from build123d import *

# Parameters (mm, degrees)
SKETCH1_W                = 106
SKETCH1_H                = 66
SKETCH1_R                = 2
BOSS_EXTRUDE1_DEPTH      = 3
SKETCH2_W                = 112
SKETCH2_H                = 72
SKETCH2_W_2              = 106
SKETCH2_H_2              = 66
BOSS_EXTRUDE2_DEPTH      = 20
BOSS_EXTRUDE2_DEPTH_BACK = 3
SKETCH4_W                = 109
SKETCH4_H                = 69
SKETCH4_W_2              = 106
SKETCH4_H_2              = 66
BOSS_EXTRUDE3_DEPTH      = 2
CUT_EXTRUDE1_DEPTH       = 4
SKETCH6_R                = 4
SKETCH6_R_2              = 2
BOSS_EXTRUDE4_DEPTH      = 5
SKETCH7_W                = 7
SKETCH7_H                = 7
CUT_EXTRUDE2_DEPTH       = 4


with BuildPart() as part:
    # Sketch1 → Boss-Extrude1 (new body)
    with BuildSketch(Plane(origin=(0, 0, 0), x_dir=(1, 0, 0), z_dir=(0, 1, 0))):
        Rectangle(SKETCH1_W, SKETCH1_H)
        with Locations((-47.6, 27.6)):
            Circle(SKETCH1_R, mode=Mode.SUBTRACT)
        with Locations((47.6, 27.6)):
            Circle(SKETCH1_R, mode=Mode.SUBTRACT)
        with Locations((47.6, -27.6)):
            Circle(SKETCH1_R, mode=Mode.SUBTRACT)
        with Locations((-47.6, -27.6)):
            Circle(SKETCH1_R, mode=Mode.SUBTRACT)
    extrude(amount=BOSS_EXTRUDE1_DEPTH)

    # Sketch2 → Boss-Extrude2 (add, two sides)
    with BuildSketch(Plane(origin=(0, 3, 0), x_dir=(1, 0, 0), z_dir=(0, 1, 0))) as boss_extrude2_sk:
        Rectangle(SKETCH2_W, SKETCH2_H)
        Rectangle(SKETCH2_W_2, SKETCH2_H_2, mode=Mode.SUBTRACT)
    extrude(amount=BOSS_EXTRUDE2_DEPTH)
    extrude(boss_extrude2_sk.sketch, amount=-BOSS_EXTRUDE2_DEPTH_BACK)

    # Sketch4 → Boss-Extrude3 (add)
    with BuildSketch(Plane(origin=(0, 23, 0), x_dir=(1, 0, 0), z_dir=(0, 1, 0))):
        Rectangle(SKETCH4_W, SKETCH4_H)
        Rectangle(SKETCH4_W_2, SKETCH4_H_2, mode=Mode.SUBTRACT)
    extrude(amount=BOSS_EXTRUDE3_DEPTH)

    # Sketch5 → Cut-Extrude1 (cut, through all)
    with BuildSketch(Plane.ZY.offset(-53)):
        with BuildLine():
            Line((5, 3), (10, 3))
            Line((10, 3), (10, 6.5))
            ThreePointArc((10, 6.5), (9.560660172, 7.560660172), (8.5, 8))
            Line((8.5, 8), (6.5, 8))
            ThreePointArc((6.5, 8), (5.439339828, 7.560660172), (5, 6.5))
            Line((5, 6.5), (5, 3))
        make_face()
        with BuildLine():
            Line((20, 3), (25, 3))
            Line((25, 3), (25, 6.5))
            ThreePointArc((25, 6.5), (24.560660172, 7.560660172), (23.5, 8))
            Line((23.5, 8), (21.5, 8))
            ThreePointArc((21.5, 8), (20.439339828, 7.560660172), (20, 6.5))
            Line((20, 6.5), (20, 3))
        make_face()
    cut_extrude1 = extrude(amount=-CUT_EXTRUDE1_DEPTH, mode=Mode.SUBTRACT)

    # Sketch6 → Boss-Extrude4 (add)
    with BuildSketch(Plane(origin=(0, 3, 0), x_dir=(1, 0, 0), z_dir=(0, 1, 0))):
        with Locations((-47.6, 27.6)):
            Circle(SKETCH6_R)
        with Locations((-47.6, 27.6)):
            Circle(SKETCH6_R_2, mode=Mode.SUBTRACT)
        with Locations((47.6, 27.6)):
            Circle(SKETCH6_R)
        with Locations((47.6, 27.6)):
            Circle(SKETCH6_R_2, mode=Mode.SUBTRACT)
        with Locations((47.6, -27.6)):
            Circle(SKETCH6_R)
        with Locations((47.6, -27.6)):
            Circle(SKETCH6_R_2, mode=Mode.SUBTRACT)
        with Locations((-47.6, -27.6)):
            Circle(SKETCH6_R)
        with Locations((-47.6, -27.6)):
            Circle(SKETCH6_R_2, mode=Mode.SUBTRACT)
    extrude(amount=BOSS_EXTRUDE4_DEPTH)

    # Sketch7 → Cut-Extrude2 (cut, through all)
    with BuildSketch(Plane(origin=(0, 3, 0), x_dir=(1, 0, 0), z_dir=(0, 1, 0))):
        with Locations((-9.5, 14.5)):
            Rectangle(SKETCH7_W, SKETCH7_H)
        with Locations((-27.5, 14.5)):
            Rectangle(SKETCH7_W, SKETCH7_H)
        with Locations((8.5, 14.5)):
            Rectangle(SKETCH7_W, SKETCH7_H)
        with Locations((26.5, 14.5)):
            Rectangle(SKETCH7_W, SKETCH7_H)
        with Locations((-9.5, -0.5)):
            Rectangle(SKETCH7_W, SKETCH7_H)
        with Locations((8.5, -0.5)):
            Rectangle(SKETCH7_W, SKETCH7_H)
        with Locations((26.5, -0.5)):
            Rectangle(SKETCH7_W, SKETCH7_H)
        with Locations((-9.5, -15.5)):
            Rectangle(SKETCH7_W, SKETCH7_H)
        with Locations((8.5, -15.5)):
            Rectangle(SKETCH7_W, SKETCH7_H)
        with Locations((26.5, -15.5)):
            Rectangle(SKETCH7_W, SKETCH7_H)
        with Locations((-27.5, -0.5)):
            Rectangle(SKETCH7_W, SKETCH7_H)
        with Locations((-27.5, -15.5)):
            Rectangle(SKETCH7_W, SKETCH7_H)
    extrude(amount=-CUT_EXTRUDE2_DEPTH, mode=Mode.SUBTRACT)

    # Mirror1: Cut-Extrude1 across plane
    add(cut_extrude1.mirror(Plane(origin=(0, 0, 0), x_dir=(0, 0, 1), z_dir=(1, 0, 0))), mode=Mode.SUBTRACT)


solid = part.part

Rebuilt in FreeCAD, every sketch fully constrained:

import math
import FreeCAD as App
import Part
import Sketcher
Q = App.Units.Quantity


def add_polygon(sketch, points):
    """Adds a closed chain of lines whose ends are joined by coincident constraints."""
    first, n = sketch.GeometryCount, len(points)
    for a, b in zip(points, points[1:] + points[:1]):
        sketch.addGeometry(Part.LineSegment(App.Vector(*a, 0), App.Vector(*b, 0)), False)
    for i in range(n):
        sketch.addConstraint(Sketcher.Constraint("Coincident", first + i, 2, first + (i + 1) % n, 1))

doc = App.newDocument("Part")
body = doc.addObject("PartDesign::Body", "Body")

# Sketch on XZ plane
sketch1 = body.newObject("Sketcher::SketchObject", "Sketch")
sketch1.AttachmentSupport = (doc.getObject("XZ_Plane"), [""])
sketch1.MapMode = "FlatFace"
add_polygon(sketch1, [(-53, -33), (-53, 33), (53, 33), (53, -33)])  # lines 0-3
sketch1.addGeometry(Part.Circle(App.Vector(-47.6, 27.6, 0), App.Vector(0, 0, 1), 2), False)  # 4
sketch1.addGeometry(Part.Circle(App.Vector(47.6, 27.6, 0), App.Vector(0, 0, 1), 2), False)  # 5
sketch1.addGeometry(Part.Circle(App.Vector(-47.6, -27.6, 0), App.Vector(0, 0, 1), 2), False)  # 6
sketch1.addGeometry(Part.Circle(App.Vector(47.6, -27.6, 0), App.Vector(0, 0, 1), 2), False)  # 7
sketch1.addConstraint([
    Sketcher.Constraint("Vertical", 0),
    Sketcher.Constraint("Horizontal", 1),
    Sketcher.Constraint("Vertical", 2),
    Sketcher.Constraint("Horizontal", 3),
    Sketcher.Constraint("Equal", 4, 5),
    Sketcher.Constraint("Equal", 5, 6),
    Sketcher.Constraint("Equal", 6, 7),
    Sketcher.Constraint("Symmetric", 5, 3, 6, 3, -1, 1),
    Sketcher.Constraint("Symmetric", 4, 3, 7, 3, -1, 1),
    Sketcher.Constraint("Symmetric", 0, 2, 2, 2, -1, 1),
    Sketcher.Constraint("Symmetric", 4, 3, 5, 3, -2),
    Sketcher.Constraint("Diameter", 4, Q("4 mm")),
    Sketcher.Constraint("DistanceX", 1, 1, 1, 2, Q("106 mm")),
    Sketcher.Constraint("DistanceY", 0, 1, 0, 2, Q("66 mm")),
    Sketcher.Constraint("DistanceX", 4, 3, -1, 1, Q("47.6 mm")),
    Sketcher.Constraint("DistanceY", -1, 1, 4, 3, Q("27.6 mm")),
])
pad1 = body.newObject("PartDesign::Pad", "Pad")
pad1.Profile = sketch1
pad1.Length = 3
pad1.Reversed = True

# Sketch on XZ plane
sketch2 = body.newObject("Sketcher::SketchObject", "Sketch001")
sketch2.AttachmentSupport = (doc.getObject("XZ_Plane"), [""])
sketch2.MapMode = "FlatFace"
sketch2.AttachmentOffset = App.Placement(App.Vector(0, 0, -3), App.Rotation())
add_polygon(sketch2, [(-56, -36), (-56, 36), (56, 36), (56, -36)])  # lines 0-3
add_polygon(sketch2, [(53, 33), (-53, 33), (-53, -33), (53, -33)])  # lines 4-7
sketch2.addConstraint([
    Sketcher.Constraint("Vertical", 0),
    Sketcher.Constraint("Horizontal", 1),
    Sketcher.Constraint("Vertical", 2),
    Sketcher.Constraint("Horizontal", 3),
    Sketcher.Constraint("Horizontal", 4),
    Sketcher.Constraint("Vertical", 5),
    Sketcher.Constraint("Horizontal", 6),
    Sketcher.Constraint("Vertical", 7),
    Sketcher.Constraint("Symmetric", 0, 2, 2, 2, -1, 1),
    Sketcher.Constraint("Symmetric", 4, 2, 6, 2, -1, 1),
    Sketcher.Constraint("DistanceX", 1, 1, 1, 2, Q("112 mm")),
    Sketcher.Constraint("DistanceX", 4, 2, 4, 1, Q("106 mm")),
    Sketcher.Constraint("DistanceY", 0, 1, 0, 2, Q("72 mm")),
    Sketcher.Constraint("DistanceY", 5, 2, 5, 1, Q("66 mm")),
])
pad2 = body.newObject("PartDesign::Pad", "Pad001")
pad2.Profile = sketch2
pad2.Type = "TwoLengths"
pad2.Length = 20
pad2.Length2 = 3
pad2.Reversed = True

# Sketch on XZ plane
sketch3 = body.newObject("Sketcher::SketchObject", "Sketch002")
sketch3.AttachmentSupport = (doc.getObject("XZ_Plane"), [""])
sketch3.MapMode = "FlatFace"
sketch3.AttachmentOffset = App.Placement(App.Vector(0, 0, -23), App.Rotation())
add_polygon(sketch3, [(-54, -34), (-54, 34), (54, 34), (54, -34)])  # lines 0-3
add_polygon(sketch3, [(53, 33), (-53, 33), (-53, -33), (53, -33)])  # lines 4-7
sketch3.addConstraint([
    Sketcher.Constraint("Vertical", 0),
    Sketcher.Constraint("Horizontal", 1),
    Sketcher.Constraint("Vertical", 2),
    Sketcher.Constraint("Horizontal", 3),
    Sketcher.Constraint("Horizontal", 4),
    Sketcher.Constraint("Vertical", 5),
    Sketcher.Constraint("Horizontal", 6),
    Sketcher.Constraint("Vertical", 7),
    Sketcher.Constraint("Symmetric", 0, 2, 2, 2, -1, 1),
    Sketcher.Constraint("Symmetric", 4, 2, 6, 2, -1, 1),
    Sketcher.Constraint("DistanceX", 1, 1, 1, 2, Q("109 mm")),
    Sketcher.Constraint("DistanceX", 4, 2, 4, 1, Q("106 mm")),
    Sketcher.Constraint("DistanceY", 0, 1, 0, 2, Q("69 mm")),
    Sketcher.Constraint("DistanceY", 5, 2, 5, 1, Q("66 mm")),
])
pad3 = body.newObject("PartDesign::Pad", "Pad002")
pad3.Profile = sketch3
pad3.Length = 2
pad3.Reversed = True

# Sketch on YZ plane
sketch4 = body.newObject("Sketcher::SketchObject", "Sketch003")
sketch4.AttachmentSupport = (doc.getObject("YZ_Plane"), [""])
sketch4.MapMode = "FlatFace"
sketch4.AttachmentOffset = App.Placement(App.Vector(0, 0, 53), App.Rotation())
sketch4.addGeometry([
    Part.LineSegment(App.Vector(3, 5, 0), App.Vector(3, 10, 0)),  # 0
    Part.LineSegment(App.Vector(3, 10, 0), App.Vector(6.5, 10, 0)),  # 1
    Part.ArcOfCircle(Part.Circle(App.Vector(6.5, 8.5, 0), App.Vector(0, 0, 1), 1.5), math.radians(0), math.radians(90)),  # 2
    Part.LineSegment(App.Vector(8, 8.5, 0), App.Vector(8, 6.5, 0)),  # 3
    Part.ArcOfCircle(Part.Circle(App.Vector(6.5, 6.5, 0), App.Vector(0, 0, 1), 1.5), math.radians(-90), math.radians(0)),  # 4
    Part.LineSegment(App.Vector(6.5, 5, 0), App.Vector(3, 5, 0)),  # 5
    Part.LineSegment(App.Vector(3, 20, 0), App.Vector(3, 25, 0)),  # 6
    Part.LineSegment(App.Vector(3, 25, 0), App.Vector(6.5, 25, 0)),  # 7
    Part.ArcOfCircle(Part.Circle(App.Vector(6.5, 23.5, 0), App.Vector(0, 0, 1), 1.5), math.radians(0), math.radians(90)),  # 8
    Part.LineSegment(App.Vector(8, 23.5, 0), App.Vector(8, 21.5, 0)),  # 9
    Part.ArcOfCircle(Part.Circle(App.Vector(6.5, 21.5, 0), App.Vector(0, 0, 1), 1.5), math.radians(-90), math.radians(0)),  # 10
    Part.LineSegment(App.Vector(6.5, 20, 0), App.Vector(3, 20, 0)),  # 11
], False)
sketch4.addConstraint([
    Sketcher.Constraint("Coincident", 0, 2, 1, 1),
    Sketcher.Constraint("Tangent", 1, 2, 2, 2),
    Sketcher.Constraint("Tangent", 2, 1, 3, 1),
    Sketcher.Constraint("Tangent", 3, 2, 4, 2),
    Sketcher.Constraint("Tangent", 4, 1, 5, 1),
    Sketcher.Constraint("Coincident", 5, 2, 0, 1),
    Sketcher.Constraint("Coincident", 6, 2, 7, 1),
    Sketcher.Constraint("Tangent", 7, 2, 8, 2),
    Sketcher.Constraint("Tangent", 8, 1, 9, 1),
    Sketcher.Constraint("Tangent", 9, 2, 10, 2),
    Sketcher.Constraint("Tangent", 10, 1, 11, 1),
    Sketcher.Constraint("Coincident", 11, 2, 6, 1),
    Sketcher.Constraint("Vertical", 0),
    Sketcher.Constraint("Horizontal", 1),
    Sketcher.Constraint("Vertical", 3),
    Sketcher.Constraint("Horizontal", 5),
    Sketcher.Constraint("Vertical", 6),
    Sketcher.Constraint("Horizontal", 7),
    Sketcher.Constraint("Vertical", 9),
    Sketcher.Constraint("Horizontal", 11),
    Sketcher.Constraint("Equal", 2, 4),
    Sketcher.Constraint("Equal", 4, 8),
    Sketcher.Constraint("Equal", 8, 10),
    Sketcher.Constraint("Vertical", 4, 3, 8, 3),
    Sketcher.Constraint("Vertical", 5, 2, 6, 2),
    Sketcher.Constraint("Equal", 0, 6),
    Sketcher.Constraint("Radius", 2, Q("1.5 mm")),
    Sketcher.Constraint("DistanceY", 0, 1, 0, 2, Q("5 mm")),
    Sketcher.Constraint("DistanceX", 1, 1, 1, 2, Q("3.5 mm")),
    Sketcher.Constraint("DistanceX", -1, 1, 0, 2, Q("3 mm")),
    Sketcher.Constraint("DistanceY", -1, 1, 0, 2, Q("10 mm")),
    Sketcher.Constraint("DistanceY", -1, 1, 6, 2, Q("25 mm")),
])
pocket1 = body.newObject("PartDesign::Pocket", "Pocket")
pocket1.Profile = sketch4
pocket1.Type = "ThroughAll"
pocket1.Reversed = True

# Sketch on XZ plane
sketch5 = body.newObject("Sketcher::SketchObject", "Sketch004")
sketch5.AttachmentSupport = (doc.getObject("XZ_Plane"), [""])
sketch5.MapMode = "FlatFace"
sketch5.AttachmentOffset = App.Placement(App.Vector(0, 0, -3), App.Rotation())
sketch5.addGeometry([
    Part.Circle(App.Vector(-47.6, -27.6, 0), App.Vector(0, 0, 1), 4),  # 0
    Part.Circle(App.Vector(-47.6, -27.6, 0), App.Vector(0, 0, 1), 2),  # 1
    Part.Circle(App.Vector(47.6, -27.6, 0), App.Vector(0, 0, 1), 4),  # 2
    Part.Circle(App.Vector(47.6, -27.6, 0), App.Vector(0, 0, 1), 2),  # 3
    Part.Circle(App.Vector(47.6, 27.6, 0), App.Vector(0, 0, 1), 4),  # 4
    Part.Circle(App.Vector(47.6, 27.6, 0), App.Vector(0, 0, 1), 2),  # 5
    Part.Circle(App.Vector(-47.6, 27.6, 0), App.Vector(0, 0, 1), 4),  # 6
    Part.Circle(App.Vector(-47.6, 27.6, 0), App.Vector(0, 0, 1), 2),  # 7
], False)
sketch5.addConstraint([
    Sketcher.Constraint("Coincident", 1, 3, 0, 3),
    Sketcher.Constraint("Coincident", 3, 3, 2, 3),
    Sketcher.Constraint("Coincident", 5, 3, 4, 3),
    Sketcher.Constraint("Coincident", 7, 3, 6, 3),
    Sketcher.Constraint("Equal", 0, 2),
    Sketcher.Constraint("Equal", 1, 3),
    Sketcher.Constraint("Equal", 2, 4),
    Sketcher.Constraint("Equal", 3, 5),
    Sketcher.Constraint("Equal", 4, 6),
    Sketcher.Constraint("Equal", 5, 7),
    Sketcher.Constraint("Symmetric", 0, 3, 4, 3, -1, 1),
    Sketcher.Constraint("Symmetric", 2, 3, 6, 3, -1, 1),
    Sketcher.Constraint("Symmetric", 0, 3, 2, 3, -2),
    Sketcher.Constraint("Diameter", 0, Q("8 mm")),
    Sketcher.Constraint("Diameter", 1, Q("4 mm")),
    Sketcher.Constraint("DistanceX", 0, 3, -1, 1, Q("47.6 mm")),
    Sketcher.Constraint("DistanceY", 0, 3, -1, 1, Q("27.6 mm")),
])
pad4 = body.newObject("PartDesign::Pad", "Pad003")
pad4.Profile = sketch5
pad4.Length = 5
pad4.Reversed = True

# Sketch on XZ plane
sketch6 = body.newObject("Sketcher::SketchObject", "Sketch005")
sketch6.AttachmentSupport = (doc.getObject("XZ_Plane"), [""])
sketch6.MapMode = "FlatFace"
sketch6.AttachmentOffset = App.Placement(App.Vector(0, 0, -3), App.Rotation())
add_polygon(sketch6, [(-13, -18), (-13, -11), (-6, -11), (-6, -18)])  # lines 0-3
add_polygon(sketch6, [(-31, -18), (-31, -11), (-24, -11), (-24, -18)])  # lines 4-7
add_polygon(sketch6, [(5, -18), (5, -11), (12, -11), (12, -18)])  # lines 8-11
add_polygon(sketch6, [(23, -18), (23, -11), (30, -11), (30, -18)])  # lines 12-15
add_polygon(sketch6, [(-13, -3), (-13, 4), (-6, 4), (-6, -3)])  # lines 16-19
add_polygon(sketch6, [(5, -3), (5, 4), (12, 4), (12, -3)])  # lines 20-23
add_polygon(sketch6, [(23, -3), (23, 4), (30, 4), (30, -3)])  # lines 24-27
add_polygon(sketch6, [(-13, 12), (-13, 19), (-6, 19), (-6, 12)])  # lines 28-31
add_polygon(sketch6, [(5, 12), (5, 19), (12, 19), (12, 12)])  # lines 32-35
add_polygon(sketch6, [(23, 12), (23, 19), (30, 19), (30, 12)])  # lines 36-39
add_polygon(sketch6, [(-31, -3), (-31, 4), (-24, 4), (-24, -3)])  # lines 40-43
add_polygon(sketch6, [(-31, 12), (-31, 19), (-24, 19), (-24, 12)])  # lines 44-47
sketch6.addConstraint([
    Sketcher.Constraint("Vertical", 0),
    Sketcher.Constraint("Horizontal", 1),
    Sketcher.Constraint("Vertical", 2),
    Sketcher.Constraint("Horizontal", 3),
    Sketcher.Constraint("Vertical", 4),
    Sketcher.Constraint("Horizontal", 5),
    Sketcher.Constraint("Vertical", 6),
    Sketcher.Constraint("Horizontal", 7),
    Sketcher.Constraint("Vertical", 8),
    Sketcher.Constraint("Horizontal", 9),
    Sketcher.Constraint("Vertical", 10),
    Sketcher.Constraint("Horizontal", 11),
    Sketcher.Constraint("Vertical", 12),
    Sketcher.Constraint("Horizontal", 13),
    Sketcher.Constraint("Vertical", 14),
    Sketcher.Constraint("Horizontal", 15),
    Sketcher.Constraint("Vertical", 16),
    Sketcher.Constraint("Horizontal", 17),
    Sketcher.Constraint("Vertical", 18),
    Sketcher.Constraint("Horizontal", 19),
    Sketcher.Constraint("Vertical", 20),
    Sketcher.Constraint("Horizontal", 21),
    Sketcher.Constraint("Vertical", 22),
    Sketcher.Constraint("Horizontal", 23),
    Sketcher.Constraint("Vertical", 24),
    Sketcher.Constraint("Horizontal", 25),
    Sketcher.Constraint("Vertical", 26),
    Sketcher.Constraint("Horizontal", 27),
    Sketcher.Constraint("Vertical", 28),
    Sketcher.Constraint("Horizontal", 29),
    Sketcher.Constraint("Vertical", 30),
    Sketcher.Constraint("Horizontal", 31),
    Sketcher.Constraint("Vertical", 32),
    Sketcher.Constraint("Horizontal", 33),
    Sketcher.Constraint("Vertical", 34),
    Sketcher.Constraint("Horizontal", 35),
    Sketcher.Constraint("Vertical", 36),
    Sketcher.Constraint("Horizontal", 37),
    Sketcher.Constraint("Vertical", 38),
    Sketcher.Constraint("Horizontal", 39),
    Sketcher.Constraint("Vertical", 40),
    Sketcher.Constraint("Horizontal", 41),
    Sketcher.Constraint("Vertical", 42),
    Sketcher.Constraint("Horizontal", 43),
    Sketcher.Constraint("Vertical", 44),
    Sketcher.Constraint("Horizontal", 45),
    Sketcher.Constraint("Vertical", 46),
    Sketcher.Constraint("Horizontal", 47),
    Sketcher.Constraint("Horizontal", 1, 2, 4, 2),
    Sketcher.Constraint("Horizontal", 3, 2, 6, 2),
    Sketcher.Constraint("Horizontal", 5, 2, 8, 2),
    Sketcher.Constraint("Horizontal", 7, 2, 10, 2),
    Sketcher.Constraint("Horizontal", 9, 2, 12, 2),
    Sketcher.Constraint("Horizontal", 11, 2, 14, 2),
    Sketcher.Constraint("Horizontal", 17, 2, 20, 2),
    Sketcher.Constraint("Horizontal", 19, 2, 22, 2),
    Sketcher.Constraint("Horizontal", 21, 2, 24, 2),
    Sketcher.Constraint("Horizontal", 23, 2, 26, 2),
    Sketcher.Constraint("Horizontal", 29, 2, 32, 2),
    Sketcher.Constraint("Horizontal", 31, 2, 34, 2),
    Sketcher.Constraint("Horizontal", 33, 2, 36, 2),
    Sketcher.Constraint("Horizontal", 35, 2, 38, 2),
    Sketcher.Constraint("Horizontal", 25, 2, 40, 2),
    Sketcher.Constraint("Horizontal", 27, 2, 42, 2),
    Sketcher.Constraint("Horizontal", 37, 2, 44, 2),
    Sketcher.Constraint("Horizontal", 39, 2, 46, 2),
    Sketcher.Constraint("Vertical", 3, 2, 16, 2),
    Sketcher.Constraint("Vertical", 2, 2, 17, 2),
    Sketcher.Constraint("Vertical", 11, 2, 20, 2),
    Sketcher.Constraint("Vertical", 10, 2, 21, 2),
    Sketcher.Constraint("Vertical", 15, 2, 24, 2),
    Sketcher.Constraint("Vertical", 14, 2, 25, 2),
    Sketcher.Constraint("Vertical", 19, 2, 28, 2),
    Sketcher.Constraint("Vertical", 18, 2, 29, 2),
    Sketcher.Constraint("Vertical", 23, 2, 32, 2),
    Sketcher.Constraint("Vertical", 22, 2, 33, 2),
    Sketcher.Constraint("Vertical", 27, 2, 36, 2),
    Sketcher.Constraint("Vertical", 26, 2, 37, 2),
    Sketcher.Constraint("Vertical", 7, 2, 40, 2),
    Sketcher.Constraint("Vertical", 6, 2, 41, 2),
    Sketcher.Constraint("Vertical", 43, 2, 44, 2),
    Sketcher.Constraint("Vertical", 42, 2, 45, 2),
    Sketcher.Constraint("Equal", 3, 5),
    Sketcher.Constraint("Equal", 7, 9),
    Sketcher.Constraint("Equal", 11, 13),
    Sketcher.Constraint("Equal", 47, 0),
    Sketcher.Constraint("Equal", 14, 16),
    Sketcher.Constraint("Equal", 26, 28),
    Sketcher.Constraint("DistanceX", 1, 1, 1, 2, Q("7 mm")),
    Sketcher.Constraint("DistanceX", 0, 2, -1, 1, Q("13 mm")),
    Sketcher.Constraint("DistanceY", 0, 2, -1, 1, Q("11 mm")),
    Sketcher.Constraint("DistanceX", 4, 2, -1, 1, Q("31 mm")),
    Sketcher.Constraint("DistanceX", -1, 1, 8, 2, Q("5 mm")),
    Sketcher.Constraint("DistanceX", -1, 1, 12, 2, Q("23 mm")),
    Sketcher.Constraint("DistanceY", -1, 1, 16, 2, Q("4 mm")),
    Sketcher.Constraint("DistanceY", -1, 1, 28, 2, Q("19 mm")),
])
pocket2 = body.newObject("PartDesign::Pocket", "Pocket001")
pocket2.Profile = sketch6
pocket2.Type = "ThroughAll"
pocket2.Reversed = True
doc.recompute()

mirrored = body.newObject("PartDesign::Mirrored", "Mirrored")
mirrored.Originals = [pocket1]
mirrored.MirrorPlane = (doc.getObject("YZ_Plane"), [""])
body.Tip = mirrored

doc.recompute()
